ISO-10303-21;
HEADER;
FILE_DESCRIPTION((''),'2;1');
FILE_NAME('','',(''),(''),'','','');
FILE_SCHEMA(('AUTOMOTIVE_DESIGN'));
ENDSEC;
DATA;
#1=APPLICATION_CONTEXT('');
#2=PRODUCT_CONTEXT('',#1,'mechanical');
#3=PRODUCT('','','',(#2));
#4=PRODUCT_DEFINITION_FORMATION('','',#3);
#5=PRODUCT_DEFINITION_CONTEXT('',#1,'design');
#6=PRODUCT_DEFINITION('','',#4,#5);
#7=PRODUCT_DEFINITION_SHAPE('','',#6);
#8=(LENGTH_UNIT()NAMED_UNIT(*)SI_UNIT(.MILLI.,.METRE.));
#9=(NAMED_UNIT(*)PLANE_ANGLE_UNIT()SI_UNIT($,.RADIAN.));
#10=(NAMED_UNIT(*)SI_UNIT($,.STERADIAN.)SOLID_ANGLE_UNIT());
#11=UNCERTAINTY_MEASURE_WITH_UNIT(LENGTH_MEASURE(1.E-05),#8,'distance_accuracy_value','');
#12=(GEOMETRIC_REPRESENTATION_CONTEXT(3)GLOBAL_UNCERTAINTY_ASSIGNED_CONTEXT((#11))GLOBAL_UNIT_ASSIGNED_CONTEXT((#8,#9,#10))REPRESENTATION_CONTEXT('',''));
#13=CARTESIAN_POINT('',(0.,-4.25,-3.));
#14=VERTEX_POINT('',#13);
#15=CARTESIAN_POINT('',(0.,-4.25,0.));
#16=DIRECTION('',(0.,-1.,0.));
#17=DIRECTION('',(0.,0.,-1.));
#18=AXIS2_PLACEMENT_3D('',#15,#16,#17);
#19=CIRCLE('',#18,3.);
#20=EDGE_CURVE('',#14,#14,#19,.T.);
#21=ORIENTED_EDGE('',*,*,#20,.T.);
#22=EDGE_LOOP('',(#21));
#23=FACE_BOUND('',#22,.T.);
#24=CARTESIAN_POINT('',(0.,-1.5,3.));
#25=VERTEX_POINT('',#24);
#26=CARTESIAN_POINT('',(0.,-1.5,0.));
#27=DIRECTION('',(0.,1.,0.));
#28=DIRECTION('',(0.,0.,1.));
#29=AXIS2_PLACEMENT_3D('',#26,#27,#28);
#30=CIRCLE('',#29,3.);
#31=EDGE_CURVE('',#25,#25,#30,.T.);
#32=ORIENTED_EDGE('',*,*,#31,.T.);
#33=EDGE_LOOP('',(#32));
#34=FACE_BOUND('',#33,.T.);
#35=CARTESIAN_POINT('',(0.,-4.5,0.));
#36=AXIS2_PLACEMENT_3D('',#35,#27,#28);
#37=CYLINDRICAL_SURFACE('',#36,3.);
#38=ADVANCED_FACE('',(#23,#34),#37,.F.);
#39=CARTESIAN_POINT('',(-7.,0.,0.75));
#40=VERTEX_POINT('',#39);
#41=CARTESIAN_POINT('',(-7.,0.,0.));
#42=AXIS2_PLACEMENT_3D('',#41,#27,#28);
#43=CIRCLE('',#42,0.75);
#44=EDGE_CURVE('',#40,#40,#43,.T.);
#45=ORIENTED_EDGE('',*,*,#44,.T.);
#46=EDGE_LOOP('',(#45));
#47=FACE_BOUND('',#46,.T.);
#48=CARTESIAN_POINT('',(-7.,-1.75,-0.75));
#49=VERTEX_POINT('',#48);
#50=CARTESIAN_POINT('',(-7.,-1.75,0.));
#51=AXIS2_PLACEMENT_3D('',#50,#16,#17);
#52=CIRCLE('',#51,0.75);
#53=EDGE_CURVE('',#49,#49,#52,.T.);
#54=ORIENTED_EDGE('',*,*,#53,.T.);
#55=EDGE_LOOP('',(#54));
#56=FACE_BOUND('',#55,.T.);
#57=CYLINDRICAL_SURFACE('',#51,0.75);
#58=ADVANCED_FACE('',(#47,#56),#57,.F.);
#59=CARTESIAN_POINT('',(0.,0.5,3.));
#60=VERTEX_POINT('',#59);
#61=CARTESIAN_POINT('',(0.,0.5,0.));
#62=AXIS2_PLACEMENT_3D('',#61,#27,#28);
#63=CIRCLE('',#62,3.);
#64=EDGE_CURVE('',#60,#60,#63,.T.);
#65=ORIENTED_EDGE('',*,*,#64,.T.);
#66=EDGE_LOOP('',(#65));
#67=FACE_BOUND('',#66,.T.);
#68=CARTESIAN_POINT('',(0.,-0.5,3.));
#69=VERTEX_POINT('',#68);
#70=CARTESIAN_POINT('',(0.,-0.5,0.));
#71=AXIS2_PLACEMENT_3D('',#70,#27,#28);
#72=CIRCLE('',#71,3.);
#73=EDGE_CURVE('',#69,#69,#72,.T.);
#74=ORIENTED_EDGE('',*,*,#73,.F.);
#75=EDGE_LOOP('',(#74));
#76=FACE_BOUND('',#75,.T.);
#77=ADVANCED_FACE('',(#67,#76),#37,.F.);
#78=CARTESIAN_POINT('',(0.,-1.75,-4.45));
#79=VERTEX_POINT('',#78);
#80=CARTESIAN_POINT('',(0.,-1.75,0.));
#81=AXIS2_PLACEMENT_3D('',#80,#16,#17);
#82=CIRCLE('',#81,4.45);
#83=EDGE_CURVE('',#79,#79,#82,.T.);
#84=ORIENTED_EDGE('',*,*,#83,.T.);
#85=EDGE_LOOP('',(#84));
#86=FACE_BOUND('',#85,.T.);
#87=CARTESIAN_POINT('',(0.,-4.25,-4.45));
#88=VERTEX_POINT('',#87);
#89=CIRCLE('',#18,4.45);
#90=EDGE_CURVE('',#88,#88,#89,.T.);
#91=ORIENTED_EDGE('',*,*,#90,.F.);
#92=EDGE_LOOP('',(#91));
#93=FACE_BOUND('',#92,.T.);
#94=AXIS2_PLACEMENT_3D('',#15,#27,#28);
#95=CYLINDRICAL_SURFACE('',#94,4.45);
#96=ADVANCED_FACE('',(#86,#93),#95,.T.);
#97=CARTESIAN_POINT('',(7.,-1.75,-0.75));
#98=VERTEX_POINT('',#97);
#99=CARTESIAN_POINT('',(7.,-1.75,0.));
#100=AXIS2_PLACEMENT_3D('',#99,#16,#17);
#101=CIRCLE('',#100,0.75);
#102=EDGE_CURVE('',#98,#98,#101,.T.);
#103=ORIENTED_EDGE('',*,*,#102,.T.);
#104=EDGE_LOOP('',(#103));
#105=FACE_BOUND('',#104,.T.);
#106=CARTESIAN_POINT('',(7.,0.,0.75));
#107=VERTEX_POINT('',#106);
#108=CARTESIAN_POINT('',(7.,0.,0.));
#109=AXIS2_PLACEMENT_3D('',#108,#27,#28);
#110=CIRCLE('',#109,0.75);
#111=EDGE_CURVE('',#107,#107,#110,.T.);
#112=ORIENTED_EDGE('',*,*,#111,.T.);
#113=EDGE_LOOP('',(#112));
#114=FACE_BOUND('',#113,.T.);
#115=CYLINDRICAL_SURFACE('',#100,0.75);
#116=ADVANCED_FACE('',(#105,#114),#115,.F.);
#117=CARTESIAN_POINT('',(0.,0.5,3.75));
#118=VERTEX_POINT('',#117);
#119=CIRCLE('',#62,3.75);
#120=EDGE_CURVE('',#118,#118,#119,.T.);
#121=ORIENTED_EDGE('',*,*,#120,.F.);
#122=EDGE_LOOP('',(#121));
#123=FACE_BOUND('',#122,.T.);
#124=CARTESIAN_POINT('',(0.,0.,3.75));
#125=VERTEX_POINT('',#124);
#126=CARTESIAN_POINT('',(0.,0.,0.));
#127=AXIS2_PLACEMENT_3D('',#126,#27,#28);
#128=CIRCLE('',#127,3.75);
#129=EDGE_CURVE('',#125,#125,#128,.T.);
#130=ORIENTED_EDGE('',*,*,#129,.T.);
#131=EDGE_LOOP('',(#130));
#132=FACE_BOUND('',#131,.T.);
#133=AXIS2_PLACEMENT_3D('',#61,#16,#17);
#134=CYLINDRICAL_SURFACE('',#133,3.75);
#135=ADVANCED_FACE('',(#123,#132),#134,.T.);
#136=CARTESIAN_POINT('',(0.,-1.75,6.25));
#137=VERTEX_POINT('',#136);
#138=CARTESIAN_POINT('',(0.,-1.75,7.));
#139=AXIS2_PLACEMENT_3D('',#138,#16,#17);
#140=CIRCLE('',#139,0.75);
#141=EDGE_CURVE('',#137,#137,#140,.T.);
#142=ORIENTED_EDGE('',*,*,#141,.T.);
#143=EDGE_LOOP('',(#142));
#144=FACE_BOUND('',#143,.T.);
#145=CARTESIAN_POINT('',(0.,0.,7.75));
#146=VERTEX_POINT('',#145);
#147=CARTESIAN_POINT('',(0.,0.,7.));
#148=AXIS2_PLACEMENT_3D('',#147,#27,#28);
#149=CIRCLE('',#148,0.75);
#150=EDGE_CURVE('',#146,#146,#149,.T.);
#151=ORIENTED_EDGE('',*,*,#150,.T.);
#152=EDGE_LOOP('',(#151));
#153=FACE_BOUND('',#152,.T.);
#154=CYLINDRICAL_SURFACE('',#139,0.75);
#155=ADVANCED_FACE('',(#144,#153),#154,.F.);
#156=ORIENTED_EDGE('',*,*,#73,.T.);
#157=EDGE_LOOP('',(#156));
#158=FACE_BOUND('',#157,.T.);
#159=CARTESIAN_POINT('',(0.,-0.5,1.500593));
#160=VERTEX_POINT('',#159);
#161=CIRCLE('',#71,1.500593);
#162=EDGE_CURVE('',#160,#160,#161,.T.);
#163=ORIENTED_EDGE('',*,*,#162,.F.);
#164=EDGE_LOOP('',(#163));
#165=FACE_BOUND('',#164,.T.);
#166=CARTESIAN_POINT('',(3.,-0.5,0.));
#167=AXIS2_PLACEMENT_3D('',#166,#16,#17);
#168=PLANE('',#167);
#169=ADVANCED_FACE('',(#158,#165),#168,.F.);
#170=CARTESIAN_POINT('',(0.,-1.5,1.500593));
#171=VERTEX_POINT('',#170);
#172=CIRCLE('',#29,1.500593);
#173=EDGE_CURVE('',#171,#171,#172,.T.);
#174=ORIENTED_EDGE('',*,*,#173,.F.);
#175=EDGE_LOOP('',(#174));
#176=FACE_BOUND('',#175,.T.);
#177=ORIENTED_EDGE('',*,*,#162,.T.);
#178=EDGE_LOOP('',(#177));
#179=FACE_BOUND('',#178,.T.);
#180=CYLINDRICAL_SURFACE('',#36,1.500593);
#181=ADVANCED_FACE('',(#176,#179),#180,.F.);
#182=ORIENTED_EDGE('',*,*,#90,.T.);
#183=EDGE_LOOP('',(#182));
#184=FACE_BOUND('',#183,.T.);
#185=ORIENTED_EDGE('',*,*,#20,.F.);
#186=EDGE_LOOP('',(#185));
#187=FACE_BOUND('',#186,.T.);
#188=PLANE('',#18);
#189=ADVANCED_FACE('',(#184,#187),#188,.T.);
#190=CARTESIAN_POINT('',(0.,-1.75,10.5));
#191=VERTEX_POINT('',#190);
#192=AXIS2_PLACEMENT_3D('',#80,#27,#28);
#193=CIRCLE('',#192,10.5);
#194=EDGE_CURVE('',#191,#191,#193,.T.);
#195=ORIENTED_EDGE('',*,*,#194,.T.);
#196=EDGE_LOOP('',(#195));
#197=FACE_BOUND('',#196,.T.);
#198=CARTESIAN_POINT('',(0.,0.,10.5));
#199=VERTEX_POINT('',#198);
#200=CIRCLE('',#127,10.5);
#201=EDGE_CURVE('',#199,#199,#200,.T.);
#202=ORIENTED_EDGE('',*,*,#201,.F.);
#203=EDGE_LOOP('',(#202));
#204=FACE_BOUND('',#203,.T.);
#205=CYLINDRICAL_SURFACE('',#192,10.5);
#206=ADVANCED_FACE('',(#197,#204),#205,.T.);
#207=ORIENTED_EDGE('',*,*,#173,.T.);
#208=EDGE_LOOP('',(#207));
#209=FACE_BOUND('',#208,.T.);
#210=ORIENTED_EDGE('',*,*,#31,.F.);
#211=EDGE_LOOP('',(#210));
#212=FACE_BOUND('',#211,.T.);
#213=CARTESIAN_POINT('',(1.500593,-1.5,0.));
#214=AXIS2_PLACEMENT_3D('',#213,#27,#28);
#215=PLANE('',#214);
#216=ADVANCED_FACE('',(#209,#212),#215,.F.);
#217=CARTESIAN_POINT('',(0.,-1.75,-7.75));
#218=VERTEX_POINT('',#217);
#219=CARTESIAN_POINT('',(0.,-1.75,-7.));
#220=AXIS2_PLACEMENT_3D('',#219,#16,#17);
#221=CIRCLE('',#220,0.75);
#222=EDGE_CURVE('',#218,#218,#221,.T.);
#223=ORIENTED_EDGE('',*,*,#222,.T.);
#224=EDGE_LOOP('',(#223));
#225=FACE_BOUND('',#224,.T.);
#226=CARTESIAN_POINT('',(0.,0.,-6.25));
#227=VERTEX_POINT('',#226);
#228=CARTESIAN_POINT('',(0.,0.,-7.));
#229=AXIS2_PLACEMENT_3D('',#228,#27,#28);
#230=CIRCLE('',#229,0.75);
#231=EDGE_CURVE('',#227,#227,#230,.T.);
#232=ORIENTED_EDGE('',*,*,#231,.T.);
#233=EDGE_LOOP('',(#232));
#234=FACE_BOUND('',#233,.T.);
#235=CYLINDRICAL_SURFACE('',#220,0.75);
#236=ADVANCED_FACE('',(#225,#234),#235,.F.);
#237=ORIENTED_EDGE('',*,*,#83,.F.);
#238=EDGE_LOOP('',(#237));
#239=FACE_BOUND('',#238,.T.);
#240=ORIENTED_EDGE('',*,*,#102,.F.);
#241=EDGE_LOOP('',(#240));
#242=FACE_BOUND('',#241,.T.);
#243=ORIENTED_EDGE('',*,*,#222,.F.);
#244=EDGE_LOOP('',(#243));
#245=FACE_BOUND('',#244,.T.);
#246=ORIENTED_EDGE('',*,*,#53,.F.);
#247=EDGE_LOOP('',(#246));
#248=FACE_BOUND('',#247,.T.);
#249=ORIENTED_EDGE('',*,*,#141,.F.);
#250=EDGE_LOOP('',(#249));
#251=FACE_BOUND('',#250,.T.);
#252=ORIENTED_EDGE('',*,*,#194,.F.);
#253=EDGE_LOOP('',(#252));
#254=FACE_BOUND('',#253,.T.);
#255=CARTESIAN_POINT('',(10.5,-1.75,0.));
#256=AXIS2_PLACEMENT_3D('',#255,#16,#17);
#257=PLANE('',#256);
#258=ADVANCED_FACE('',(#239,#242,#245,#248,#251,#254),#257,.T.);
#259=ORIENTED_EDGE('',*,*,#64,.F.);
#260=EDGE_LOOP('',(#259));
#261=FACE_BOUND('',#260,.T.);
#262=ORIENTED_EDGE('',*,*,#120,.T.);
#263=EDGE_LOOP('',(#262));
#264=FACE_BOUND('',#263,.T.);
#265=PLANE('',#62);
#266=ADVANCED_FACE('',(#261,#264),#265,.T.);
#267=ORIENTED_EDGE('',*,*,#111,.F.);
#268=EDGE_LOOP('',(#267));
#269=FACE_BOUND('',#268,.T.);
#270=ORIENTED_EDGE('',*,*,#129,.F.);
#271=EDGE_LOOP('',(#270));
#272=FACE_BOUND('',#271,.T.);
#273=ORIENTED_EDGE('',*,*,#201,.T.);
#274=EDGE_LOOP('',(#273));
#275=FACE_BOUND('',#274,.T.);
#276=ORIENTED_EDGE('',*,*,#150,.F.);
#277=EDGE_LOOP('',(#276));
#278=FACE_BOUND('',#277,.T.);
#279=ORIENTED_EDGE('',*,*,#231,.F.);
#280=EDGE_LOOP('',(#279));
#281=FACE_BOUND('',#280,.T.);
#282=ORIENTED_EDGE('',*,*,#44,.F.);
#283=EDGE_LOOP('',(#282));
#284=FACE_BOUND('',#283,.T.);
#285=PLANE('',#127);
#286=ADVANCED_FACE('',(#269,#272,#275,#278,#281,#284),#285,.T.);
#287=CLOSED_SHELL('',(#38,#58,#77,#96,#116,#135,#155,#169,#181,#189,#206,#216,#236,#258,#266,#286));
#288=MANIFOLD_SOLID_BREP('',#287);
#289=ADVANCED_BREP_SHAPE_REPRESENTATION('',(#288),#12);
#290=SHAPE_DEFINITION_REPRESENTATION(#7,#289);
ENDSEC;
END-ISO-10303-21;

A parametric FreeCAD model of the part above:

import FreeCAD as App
import Part
import Sketcher
from FreeCAD import Vector

doc = App.newDocument("Part")
body = doc.addObject("PartDesign::Body", "Body")

# Sketch on XY plane
sketch1 = body.newObject("Sketcher::SketchObject", "Sketch")
sketch1.AttachmentSupport = (doc.getObject("XY_Plane"), [""])
sketch1.MapMode = "FlatFace"
sketch1.addGeometry([
    Part.LineSegment(Vector(10.5, 0, 0), Vector(10.5, -1.8, 0)),
    Part.LineSegment(Vector(10.5, -1.8, 0), Vector(0, -1.8, 0)),
    Part.LineSegment(Vector(0, -1.8, 0), Vector(0, 0, 0)),
    Part.LineSegment(Vector(0, 0, 0), Vector(10.5, 0, 0)),
], False)
sketch1.addConstraint([
    Sketcher.Constraint("Coincident", 0, 2, 1, 1),
    Sketcher.Constraint("Coincident", 1, 2, 2, 1),
    Sketcher.Constraint("Coincident", 2, 2, 3, 1),
    Sketcher.Constraint("Coincident", 3, 2, 0, 1),
    Sketcher.Constraint("Vertical", 0),
    Sketcher.Constraint("Horizontal", 1),
    Sketcher.Constraint("Vertical", 2),
    Sketcher.Constraint("Horizontal", 3),
    Sketcher.Constraint("Coincident", 2, 2, -1, 1),
    Sketcher.Constraint("DistanceX", 1, 2, 1, 1, 10.5),
    Sketcher.Constraint("DistanceY", 0, 2, 0, 1, 1.75),
])
revolution = body.newObject("PartDesign::Revolution", "Revolution")
revolution.Profile = sketch1
revolution.ReferenceAxis = (sketch1, ["V_Axis"])
revolution.Angle = 360

# Sketch on XZ plane
sketch2 = body.newObject("Sketcher::SketchObject", "Sketch001")
sketch2.AttachmentSupport = (doc.getObject("XZ_Plane"), [""])
sketch2.MapMode = "FlatFace"
sketch2.AttachmentOffset = App.Placement(Vector(0, 0, 1.75), App.Rotation())
sketch2.addGeometry(Part.Circle(Vector(0, 0, 0), Vector(0, 0, 1), 4.5), False)
sketch2.addConstraint([
    Sketcher.Constraint("Coincident", 0, 3, -1, 1),
    Sketcher.Constraint("Diameter", 0, 8.9),
])
pad1 = body.newObject("PartDesign::Pad", "Pad")
pad1.Profile = sketch2
pad1.Length = 2.5

# Sketch on XZ plane
sketch3 = body.newObject("Sketcher::SketchObject", "Sketch002")
sketch3.AttachmentSupport = (doc.getObject("XZ_Plane"), [""])
sketch3.MapMode = "FlatFace"
sketch3.addGeometry(Part.Circle(Vector(0, 0, 0), Vector(0, 0, 1), 3.8), False)
sketch3.addConstraint([
    Sketcher.Constraint("Coincident", 0, 3, -1, 1),
    Sketcher.Constraint("Diameter", 0, 7.5),
])
pad2 = body.newObject("PartDesign::Pad", "Pad001")
pad2.Profile = sketch3
pad2.Length = 0.5
pad2.Reversed = True

# Sketch on XY plane
sketch4 = body.newObject("Sketcher::SketchObject", "Sketch003")
sketch4.AttachmentSupport = (doc.getObject("XY_Plane"), [""])
sketch4.MapMode = "FlatFace"
sketch4.addGeometry([
    Part.LineSegment(Vector(3, -4.5, 0), Vector(0, -4.5, 0)),  # 0
    Part.LineSegment(Vector(0, -4.5, 0), Vector(0, 0.5, 0)),  # 1
    Part.LineSegment(Vector(0, 0.5, 0), Vector(3, 0.5, 0)),  # 2
    Part.LineSegment(Vector(3, 0.5, 0), Vector(3, -0.5, 0)),  # 3
    Part.LineSegment(Vector(3, -0.5, 0), Vector(1.5, -0.5, 0)),  # 4
    Part.LineSegment(Vector(1.5, -0.5, 0), Vector(1.5, -1.5, 0)),  # 5
    Part.LineSegment(Vector(1.5, -1.5, 0), Vector(3, -1.5, 0)),  # 6
    Part.LineSegment(Vector(3, -1.5, 0), Vector(3, -4.5, 0)),  # 7
], False)
sketch4.addConstraint([
    Sketcher.Constraint("Coincident", 0, 2, 1, 1),
    Sketcher.Constraint("Coincident", 1, 2, 2, 1),
    Sketcher.Constraint("Coincident", 2, 2, 3, 1),
    Sketcher.Constraint("Coincident", 3, 2, 4, 1),
    Sketcher.Constraint("Coincident", 4, 2, 5, 1),
    Sketcher.Constraint("Coincident", 5, 2, 6, 1),
    Sketcher.Constraint("Coincident", 6, 2, 7, 1),
    Sketcher.Constraint("Coincident", 7, 2, 0, 1),
    Sketcher.Constraint("Horizontal", 0),
    Sketcher.Constraint("Vertical", 1),
    Sketcher.Constraint("Horizontal", 2),
    Sketcher.Constraint("Vertical", 3),
    Sketcher.Constraint("Horizontal", 4),
    Sketcher.Constraint("Vertical", 5),
    Sketcher.Constraint("Horizontal", 6),
    Sketcher.Constraint("Vertical", 7),
    Sketcher.Constraint("PointOnObject", 0, 2, -2),
    Sketcher.Constraint("Vertical", 3, 2, 6, 2),
    Sketcher.Constraint("Equal", 3, 5),
    Sketcher.Constraint("Equal", 2, 7),
    Sketcher.Constraint("DistanceX", 0, 2, 0, 1, 3.0),
    Sketcher.Constraint("DistanceY", 1, 1, 1, 2, 5.0),
    Sketcher.Constraint("DistanceY", 0, 2, -1, 1, 4.5),
    Sketcher.Constraint("DistanceX", 4, 2, 4, 1, 1.499407),
])
groove = body.newObject("PartDesign::Groove", "Groove")
groove.Profile = sketch4
groove.ReferenceAxis = (sketch4, ["V_Axis"])
groove.Angle = 360

# Sketch on XZ plane
sketch5 = body.newObject("Sketcher::SketchObject", "Sketch004")
sketch5.AttachmentSupport = (doc.getObject("XZ_Plane"), [""])
sketch5.MapMode = "FlatFace"
sketch5.AttachmentOffset = App.Placement(Vector(0, 0, 1.75), App.Rotation())
sketch5.addGeometry([
    Part.Circle(Vector(7, 0, 0), Vector(0, 0, 1), 0.8),
    Part.Circle(Vector(0, -7, 0), Vector(0, 0, 1), 0.8),
    Part.Circle(Vector(-7, 0, 0), Vector(0, 0, 1), 0.8),
    Part.Circle(Vector(0, 7, 0), Vector(0, 0, 1), 0.8),
], False)
sketch5.addConstraint([
    Sketcher.Constraint("Equal", 0, 1),
    Sketcher.Constraint("Equal", 1, 2),
    Sketcher.Constraint("Equal", 2, 3),
    Sketcher.Constraint("Symmetric", 0, 3, 2, 3, -1, 1),
    Sketcher.Constraint("Symmetric", 1, 3, 3, 3, -1, 1),
    Sketcher.Constraint("PointOnObject", 0, 3, -1),
    Sketcher.Constraint("PointOnObject", 1, 3, -2),
    Sketcher.Constraint("Diameter", 0, 1.5),
    Sketcher.Constraint("DistanceX", -1, 1, 0, 3, 7.0),
    Sketcher.Constraint("DistanceY", 1, 3, -1, 1, 7.0),
])
doc.recompute()
hole = body.newObject("PartDesign::Hole", "Hole")
hole.Profile = sketch5
hole.ThreadType = "None"
hole.Diameter = 1.5
hole.DepthType = "ThroughAll"

doc.recompute()
